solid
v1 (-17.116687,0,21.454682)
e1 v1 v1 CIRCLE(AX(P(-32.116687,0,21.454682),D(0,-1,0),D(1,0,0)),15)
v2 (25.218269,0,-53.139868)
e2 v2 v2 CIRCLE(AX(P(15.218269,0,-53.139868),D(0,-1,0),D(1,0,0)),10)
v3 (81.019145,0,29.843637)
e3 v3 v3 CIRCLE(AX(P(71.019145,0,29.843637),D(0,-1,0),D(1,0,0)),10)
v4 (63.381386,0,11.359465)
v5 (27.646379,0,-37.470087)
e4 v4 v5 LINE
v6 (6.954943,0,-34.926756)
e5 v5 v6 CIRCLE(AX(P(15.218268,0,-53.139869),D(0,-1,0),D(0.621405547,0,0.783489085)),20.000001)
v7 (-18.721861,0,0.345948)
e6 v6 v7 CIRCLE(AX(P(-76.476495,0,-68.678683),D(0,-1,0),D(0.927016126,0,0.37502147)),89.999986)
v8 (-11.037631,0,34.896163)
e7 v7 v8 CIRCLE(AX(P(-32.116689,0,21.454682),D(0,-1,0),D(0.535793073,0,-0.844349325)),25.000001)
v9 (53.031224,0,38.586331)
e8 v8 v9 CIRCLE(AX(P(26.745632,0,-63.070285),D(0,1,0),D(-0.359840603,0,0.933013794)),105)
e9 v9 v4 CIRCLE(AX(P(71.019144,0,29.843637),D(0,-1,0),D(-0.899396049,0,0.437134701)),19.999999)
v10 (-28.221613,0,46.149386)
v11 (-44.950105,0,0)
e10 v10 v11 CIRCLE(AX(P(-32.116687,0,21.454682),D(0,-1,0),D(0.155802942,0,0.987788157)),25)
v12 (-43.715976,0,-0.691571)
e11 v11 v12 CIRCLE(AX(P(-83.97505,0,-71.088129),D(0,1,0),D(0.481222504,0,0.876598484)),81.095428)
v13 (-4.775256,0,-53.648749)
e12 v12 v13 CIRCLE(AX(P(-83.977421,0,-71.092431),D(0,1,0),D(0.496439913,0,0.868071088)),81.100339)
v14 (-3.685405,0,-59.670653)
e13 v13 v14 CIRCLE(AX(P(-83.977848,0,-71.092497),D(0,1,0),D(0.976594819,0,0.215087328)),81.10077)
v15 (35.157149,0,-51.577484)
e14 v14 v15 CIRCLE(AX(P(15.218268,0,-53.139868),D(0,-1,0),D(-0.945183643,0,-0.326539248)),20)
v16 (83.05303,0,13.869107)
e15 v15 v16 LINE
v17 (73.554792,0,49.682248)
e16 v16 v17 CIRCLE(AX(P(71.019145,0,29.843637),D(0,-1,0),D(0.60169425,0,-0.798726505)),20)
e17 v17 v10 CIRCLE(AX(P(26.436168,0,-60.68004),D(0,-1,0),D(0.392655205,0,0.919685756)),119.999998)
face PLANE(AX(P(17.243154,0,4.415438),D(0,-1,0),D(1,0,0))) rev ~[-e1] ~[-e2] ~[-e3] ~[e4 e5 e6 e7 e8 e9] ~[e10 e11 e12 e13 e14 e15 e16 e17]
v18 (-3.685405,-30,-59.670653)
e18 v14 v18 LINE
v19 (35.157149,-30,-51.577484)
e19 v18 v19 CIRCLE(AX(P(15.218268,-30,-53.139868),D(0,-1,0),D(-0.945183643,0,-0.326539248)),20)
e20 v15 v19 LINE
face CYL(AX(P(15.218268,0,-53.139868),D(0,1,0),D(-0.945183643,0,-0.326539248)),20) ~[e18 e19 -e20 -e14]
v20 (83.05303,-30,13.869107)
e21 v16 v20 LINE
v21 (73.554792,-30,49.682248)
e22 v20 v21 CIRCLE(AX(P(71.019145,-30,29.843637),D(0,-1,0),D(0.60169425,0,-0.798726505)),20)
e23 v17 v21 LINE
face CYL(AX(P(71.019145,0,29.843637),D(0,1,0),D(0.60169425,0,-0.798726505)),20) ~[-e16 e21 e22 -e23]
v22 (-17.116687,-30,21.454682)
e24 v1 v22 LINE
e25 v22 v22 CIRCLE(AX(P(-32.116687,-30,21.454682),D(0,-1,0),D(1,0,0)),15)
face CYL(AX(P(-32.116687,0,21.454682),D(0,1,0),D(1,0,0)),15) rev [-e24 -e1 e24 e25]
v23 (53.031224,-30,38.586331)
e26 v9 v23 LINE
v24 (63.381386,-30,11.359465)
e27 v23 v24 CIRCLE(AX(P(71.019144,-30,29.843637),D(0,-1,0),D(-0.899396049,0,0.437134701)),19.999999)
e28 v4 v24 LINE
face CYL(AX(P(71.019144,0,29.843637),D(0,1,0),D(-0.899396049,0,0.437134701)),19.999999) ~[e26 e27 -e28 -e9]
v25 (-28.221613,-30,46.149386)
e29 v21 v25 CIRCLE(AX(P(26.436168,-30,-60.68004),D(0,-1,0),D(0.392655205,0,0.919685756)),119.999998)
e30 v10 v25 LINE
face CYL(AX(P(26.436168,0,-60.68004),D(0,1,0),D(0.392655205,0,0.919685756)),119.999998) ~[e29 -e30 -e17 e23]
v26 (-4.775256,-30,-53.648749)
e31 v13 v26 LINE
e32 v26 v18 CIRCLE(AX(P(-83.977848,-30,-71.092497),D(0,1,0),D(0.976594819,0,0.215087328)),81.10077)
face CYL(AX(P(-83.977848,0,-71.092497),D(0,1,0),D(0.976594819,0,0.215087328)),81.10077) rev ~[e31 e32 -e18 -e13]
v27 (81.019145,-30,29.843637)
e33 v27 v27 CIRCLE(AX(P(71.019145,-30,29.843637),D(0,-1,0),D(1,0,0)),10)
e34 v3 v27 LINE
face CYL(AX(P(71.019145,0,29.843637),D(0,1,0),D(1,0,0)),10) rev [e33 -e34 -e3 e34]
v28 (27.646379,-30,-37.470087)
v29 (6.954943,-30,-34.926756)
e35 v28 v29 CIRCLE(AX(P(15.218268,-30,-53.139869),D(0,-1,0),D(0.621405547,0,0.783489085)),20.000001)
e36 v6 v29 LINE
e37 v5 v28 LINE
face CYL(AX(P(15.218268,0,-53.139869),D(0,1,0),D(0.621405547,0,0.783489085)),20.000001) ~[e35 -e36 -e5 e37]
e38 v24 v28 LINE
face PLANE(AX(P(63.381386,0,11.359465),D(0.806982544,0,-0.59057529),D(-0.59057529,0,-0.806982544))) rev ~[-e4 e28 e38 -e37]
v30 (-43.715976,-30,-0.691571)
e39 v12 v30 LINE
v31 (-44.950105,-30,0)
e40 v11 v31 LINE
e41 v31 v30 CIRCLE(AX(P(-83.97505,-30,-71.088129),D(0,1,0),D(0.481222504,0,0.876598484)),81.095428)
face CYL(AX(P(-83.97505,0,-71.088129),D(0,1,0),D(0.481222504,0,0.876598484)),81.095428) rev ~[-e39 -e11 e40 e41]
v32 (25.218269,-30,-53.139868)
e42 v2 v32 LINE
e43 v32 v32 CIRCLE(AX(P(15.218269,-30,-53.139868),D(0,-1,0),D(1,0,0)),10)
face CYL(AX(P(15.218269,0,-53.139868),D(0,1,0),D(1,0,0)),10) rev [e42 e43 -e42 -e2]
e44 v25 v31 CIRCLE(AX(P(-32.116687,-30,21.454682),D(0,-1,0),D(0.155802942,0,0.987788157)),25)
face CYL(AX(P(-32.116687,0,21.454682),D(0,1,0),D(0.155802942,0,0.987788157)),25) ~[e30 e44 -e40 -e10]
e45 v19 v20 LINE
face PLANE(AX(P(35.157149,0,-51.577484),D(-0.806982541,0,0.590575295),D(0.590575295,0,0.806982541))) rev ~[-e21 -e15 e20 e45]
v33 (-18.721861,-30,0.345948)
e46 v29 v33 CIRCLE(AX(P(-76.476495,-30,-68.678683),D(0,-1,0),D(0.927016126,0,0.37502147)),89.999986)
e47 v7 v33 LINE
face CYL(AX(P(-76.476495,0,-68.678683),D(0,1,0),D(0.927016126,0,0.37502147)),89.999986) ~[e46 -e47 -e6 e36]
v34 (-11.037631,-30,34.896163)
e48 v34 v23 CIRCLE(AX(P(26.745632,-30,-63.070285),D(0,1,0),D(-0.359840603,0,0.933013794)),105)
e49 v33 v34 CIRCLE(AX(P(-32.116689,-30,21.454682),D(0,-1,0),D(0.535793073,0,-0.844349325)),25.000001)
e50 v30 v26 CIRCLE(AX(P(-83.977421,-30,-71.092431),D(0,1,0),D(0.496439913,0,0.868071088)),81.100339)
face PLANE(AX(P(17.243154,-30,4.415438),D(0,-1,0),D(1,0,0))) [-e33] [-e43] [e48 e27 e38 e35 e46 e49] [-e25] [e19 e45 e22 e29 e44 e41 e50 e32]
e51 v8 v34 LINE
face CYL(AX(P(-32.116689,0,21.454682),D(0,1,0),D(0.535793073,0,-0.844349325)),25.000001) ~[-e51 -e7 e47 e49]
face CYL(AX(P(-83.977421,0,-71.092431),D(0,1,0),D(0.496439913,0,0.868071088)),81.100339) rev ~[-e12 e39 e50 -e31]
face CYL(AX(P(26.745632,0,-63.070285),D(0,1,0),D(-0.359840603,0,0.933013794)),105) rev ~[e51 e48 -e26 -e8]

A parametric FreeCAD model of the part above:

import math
import FreeCAD as App
import Part
import Sketcher
Q = App.Units.Quantity

doc = App.newDocument("Part")
body = doc.addObject("PartDesign::Body", "Body")

# Sketch on XZ plane
sketch1 = body.newObject("Sketcher::SketchObject", "Sketch")
sketch1.AttachmentSupport = (doc.getObject("XZ_Plane"), [""])
sketch1.MapMode = "FlatFace"
sketch1.addGeometry(Part.LineSegment(App.Vector(35.157149, -51.577484, 0), App.Vector(83.05303, 13.869107, 0)), False)
sketch1.addGeometry(Part.ArcOfCircle(Part.Circle(App.Vector(71.019145, 29.843637, 0), App.Vector(0, 0, 1), 20), math.radians(-53.008664), math.radians(82.716304)), False)
sketch1.addGeometry(Part.ArcOfCircle(Part.Circle(App.Vector(26.436168, -60.68004, 0), App.Vector(0, 0, 1), 119.999998), math.radians(66.880185), math.radians(117.09592)), False)
sketch1.addGeometry(Part.ArcOfCircle(Part.Circle(App.Vector(-32.116687, 21.454682, 0), App.Vector(0, 0, 1), 25), math.radians(81.036633), math.radians(239.113655)), False)
sketch1.addGeometry(Part.ArcOfCircle(Part.Circle(App.Vector(-83.97505, -71.088129, 0), App.Vector(0, 0, 1), 81.095428), math.radians(60.235201), math.radians(61.234724)), False)
sketch1.addGeometry(Part.ArcOfCircle(Part.Circle(App.Vector(-83.977421, -71.092431, 0), App.Vector(0, 0, 1), 81.100339), math.radians(12.42067), math.radians(60.235255)), False)
sketch1.addGeometry(Part.ArcOfCircle(Part.Circle(App.Vector(-83.977848, -71.092497, 0), App.Vector(0, 0, 1), 81.10077), math.radians(8.096179), math.radians(12.420651)), False)
sketch1.addGeometry(Part.ArcOfCircle(Part.Circle(App.Vector(15.218268, -53.139868, 0), App.Vector(0, 0, 1), 20), math.radians(-160.941144), math.radians(4.480465)), False)
sketch1.addGeometry(Part.Circle(App.Vector(15.218269, -53.139868, 0), App.Vector(0, 0, 1), 10), False)
sketch1.addGeometry(Part.Circle(App.Vector(-32.116687, 21.454682, 0), App.Vector(0, 0, 1), 15), False)
sketch1.addGeometry(Part.ArcOfCircle(Part.Circle(App.Vector(15.218268, -53.139869, 0), App.Vector(0, 0, 1), 20.000001), math.radians(51.581152), math.radians(114.403887)), False)
sketch1.addGeometry(Part.ArcOfCircle(Part.Circle(App.Vector(-76.476495, -68.678683, 0), App.Vector(0, 0, 1), 89.999986), math.radians(22.02564), math.radians(50.079935)), False)
sketch1.addGeometry(Part.ArcOfCircle(Part.Circle(App.Vector(-32.116689, 21.454682, 0), App.Vector(0, 0, 1), 25.000001), math.radians(-57.602288), math.radians(32.524432)), False)
sketch1.addGeometry(Part.ArcOfCircle(Part.Circle(App.Vector(26.745632, -63.070285, 0), App.Vector(0, 0, 1), 105), math.radians(75.502428), math.radians(111.090407)), False)
sketch1.addGeometry(Part.ArcOfCircle(Part.Circle(App.Vector(71.019144, 29.843637, 0), App.Vector(0, 0, 1), 19.999999), math.radians(154.078794), math.radians(247.549325)), False)
sketch1.addGeometry(Part.LineSegment(App.Vector(63.381386, 11.359465, 0), App.Vector(27.646379, -37.470087, 0)), False)
sketch1.addGeometry(Part.Circle(App.Vector(71.019145, 29.843637, 0), App.Vector(0, 0, 1), 10), False)
sketch1.addConstraint(Sketcher.Constraint("Coincident", 0, 2, 1, 1))
sketch1.addConstraint(Sketcher.Constraint("Coincident", 1, 2, 2, 1))
sketch1.addConstraint(Sketcher.Constraint("Coincident", 2, 2, 3, 1))
sketch1.addConstraint(Sketcher.Constraint("Coincident", 3, 2, 4, 2))
sketch1.addConstraint(Sketcher.Constraint("Coincident", 4, 1, 5, 2))
sketch1.addConstraint(Sketcher.Constraint("Coincident", 5, 1, 6, 2))
sketch1.addConstraint(Sketcher.Constraint("Coincident", 6, 1, 7, 1))
sketch1.addConstraint(Sketcher.Constraint("Coincident", 7, 2, 0, 1))
sketch1.addConstraint(Sketcher.Constraint("Coincident", 10, 2, 11, 1))
sketch1.addConstraint(Sketcher.Constraint("Coincident", 11, 2, 12, 1))
sketch1.addConstraint(Sketcher.Constraint("Coincident", 12, 2, 13, 2))
sketch1.addConstraint(Sketcher.Constraint("Coincident", 13, 1, 14, 1))
sketch1.addConstraint(Sketcher.Constraint("Coincident", 14, 2, 15, 1))
sketch1.addConstraint(Sketcher.Constraint("Coincident", 15, 2, 10, 1))
sketch1.addConstraint(Sketcher.Constraint("Coincident", 8, 3, 7, 3))
sketch1.addConstraint(Sketcher.Constraint("Coincident", 9, 3, 3, 3))
sketch1.addConstraint(Sketcher.Constraint("Coincident", 10, 3, 7, 3))
sketch1.addConstraint(Sketcher.Constraint("Coincident", 12, 3, 3, 3))
sketch1.addConstraint(Sketcher.Constraint("Coincident", 14, 3, 1, 3))
sketch1.addConstraint(Sketcher.Constraint("Coincident", 16, 3, 1, 3))
sketch1.addConstraint(Sketcher.Constraint("PointOnObject", 3, 2, -1))
sketch1.addConstraint(Sketcher.Constraint("Diameter", 8, Q("20 mm")))
sketch1.addConstraint(Sketcher.Constraint("Diameter", 9, Q("30 mm")))
sketch1.addConstraint(Sketcher.Constraint("Diameter", 16, Q("20 mm")))
sketch1.addConstraint(Sketcher.Constraint("Radius", 1, Q("20 mm")))
sketch1.addConstraint(Sketcher.Constraint("Radius", 3, Q("25 mm")))
sketch1.addConstraint(Sketcher.Constraint("Radius", 7, Q("20 mm")))
sketch1.addConstraint(Sketcher.Constraint("Radius", 10, Q("20.000001 mm")))
sketch1.addConstraint(Sketcher.Constraint("Radius", 12, Q("25.000001 mm")))
sketch1.addConstraint(Sketcher.Constraint("Radius", 13, Q("105 mm")))
sketch1.addConstraint(Sketcher.Constraint("Radius", 14, Q("19.999999 mm")))
sketch1.addConstraint(Sketcher.Constraint("Radius", 5, Q("81.100339 mm")))
sketch1.addConstraint(Sketcher.Constraint("Radius", 6, Q("81.10077 mm")))
sketch1.addConstraint(Sketcher.Constraint("Radius", 2, Q("119.999998 mm")))
sketch1.addConstraint(Sketcher.Constraint("Radius", 4, Q("81.095428 mm")))
sketch1.addConstraint(Sketcher.Constraint("Radius", 11, Q("89.999986 mm")))
sketch1.addConstraint(Sketcher.Constraint("DistanceY", 5, 3, 4, 3, Q("0.004302 mm")))
sketch1.addConstraint(Sketcher.Constraint("DistanceX", 6, 3, 4, 3, Q("0.002799 mm")))
sketch1.addConstraint(Sketcher.Constraint("DistanceX", 7, 3, 2, 3, Q("11.2179 mm")))
sketch1.addConstraint(Sketcher.Constraint("DistanceY", 13, 3, 7, 2, Q("11.492801 mm")))
sketch1.addConstraint(Sketcher.Constraint("DistanceX", 5, 1, 10, 2, Q("11.730199 mm")))
sketch1.addConstraint(Sketcher.Constraint("Distance", 0, Q("81.10038 mm")))
sketch1.addConstraint(Sketcher.Constraint("Distance", 15, Q("60.508808 mm")))
sketch1.addConstraint(Sketcher.Constraint("DistanceX", -1, 1, 2, 3, Q("26.436168 mm")))
sketch1.addConstraint(Sketcher.Constraint("DistanceY", 2, 3, -1, 1, Q("60.68004 mm")))
sketch1.addConstraint(Sketcher.Constraint("DistanceY", -1, 1, 3, 3, Q("21.454682 mm")))
sketch1.addConstraint(Sketcher.Constraint("DistanceX", 4, 3, -1, 1, Q("83.97505 mm")))
sketch1.addConstraint(Sketcher.Constraint("DistanceY", 4, 3, -1, 1, Q("71.088129 mm")))
sketch1.addConstraint(Sketcher.Constraint("DistanceY", 10, 3, -1, 1, Q("53.139869 mm")))
sketch1.addConstraint(Sketcher.Constraint("DistanceX", -1, 1, 0, 2, Q("83.05303 mm")))
sketch1.addConstraint(Sketcher.Constraint("DistanceY", -1, 1, 1, 2, Q("49.682248 mm")))
sketch1.addConstraint(Sketcher.Constraint("DistanceY", 4, 1, -1, 1, Q("0.691571 mm")))
sketch1.addConstraint(Sketcher.Constraint("DistanceY", 5, 1, -1, 1, Q("53.648749 mm")))
sketch1.addConstraint(Sketcher.Constraint("DistanceX", -1, 1, 7, 2, Q("35.157149 mm")))
sketch1.addConstraint(Sketcher.Constraint("DistanceX", 11, 2, -1, 1, Q("18.721861 mm")))
sketch1.addConstraint(Sketcher.Constraint("DistanceX", 12, 2, -1, 1, Q("11.037631 mm")))
sketch1.addConstraint(Sketcher.Constraint("DistanceX", -1, 1, 15, 2, Q("27.646379 mm")))
pad1 = body.newObject("PartDesign::Pad", "Pad")
pad1.Profile = sketch1
pad1.Length = 30

doc.recompute()
